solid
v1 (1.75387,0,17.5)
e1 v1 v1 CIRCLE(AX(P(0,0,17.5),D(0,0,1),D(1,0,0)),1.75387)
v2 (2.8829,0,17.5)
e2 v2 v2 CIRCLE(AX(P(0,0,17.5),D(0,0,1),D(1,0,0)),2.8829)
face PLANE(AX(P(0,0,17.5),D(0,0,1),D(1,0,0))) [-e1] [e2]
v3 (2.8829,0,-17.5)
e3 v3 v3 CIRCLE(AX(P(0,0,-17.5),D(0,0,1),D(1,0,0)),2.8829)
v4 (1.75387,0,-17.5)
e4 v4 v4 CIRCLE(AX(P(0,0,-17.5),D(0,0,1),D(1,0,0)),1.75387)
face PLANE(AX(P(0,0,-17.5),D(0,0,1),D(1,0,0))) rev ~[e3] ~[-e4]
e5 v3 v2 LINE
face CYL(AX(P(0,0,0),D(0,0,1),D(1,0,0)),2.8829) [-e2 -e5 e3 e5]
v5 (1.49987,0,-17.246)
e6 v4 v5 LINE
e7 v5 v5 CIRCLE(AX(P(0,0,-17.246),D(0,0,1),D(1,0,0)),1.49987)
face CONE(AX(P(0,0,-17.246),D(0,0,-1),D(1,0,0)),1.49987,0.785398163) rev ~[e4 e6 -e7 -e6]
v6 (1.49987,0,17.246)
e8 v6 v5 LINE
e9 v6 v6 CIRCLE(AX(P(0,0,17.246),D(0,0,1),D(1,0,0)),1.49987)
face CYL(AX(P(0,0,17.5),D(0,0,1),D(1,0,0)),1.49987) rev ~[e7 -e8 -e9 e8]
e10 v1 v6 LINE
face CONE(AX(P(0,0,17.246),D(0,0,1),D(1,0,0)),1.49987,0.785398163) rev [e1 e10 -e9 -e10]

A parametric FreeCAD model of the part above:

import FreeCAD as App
import Part
import Sketcher
from FreeCAD import Vector
Q = App.Units.Quantity


def edges_at(feature, points):
    """Names of the edges that pass closest to the given points."""
    edges = feature.Shape.Edges
    near = lambda p: min(range(len(edges)), key=lambda i: edges[i].distToShape(Part.Vertex(*p))[0])
    return sorted({f"Edge{near(p) + 1}" for p in points})

doc = App.newDocument("Part")
body = doc.addObject("PartDesign::Body", "Body")

# Sketch on XY plane
sketch1 = doc.addObject("Sketcher::SketchObject", "Sketch")
body.addObject(sketch1)
sketch1.AttachmentSupport = (doc.XY_Plane, [""])
sketch1.MapMode = "FlatFace"
sketch1.addGeometry(Part.Circle(Vector(0, 0, 0), Vector(0, 0, 1), 2.9), False)
sketch1.addConstraint([
    Sketcher.Constraint("Coincident", 0, 3, -1, 1),
    Sketcher.Constraint("Diameter", 0, Q("0.227 in")),
])
pad1 = doc.addObject("PartDesign::Pad", "Pad")
body.addObject(pad1)
pad1.Profile = sketch1
pad1.Length = 35
pad1.Midplane = True

# Sketch on XY plane
sketch2 = doc.addObject("Sketcher::SketchObject", "Sketch001")
body.addObject(sketch2)
sketch2.AttachmentSupport = (doc.XY_Plane, [""])
sketch2.MapMode = "FlatFace"
sketch2.AttachmentOffset = App.Placement(Vector(0, 0, 17.5), App.Rotation())
sketch2.addGeometry(Part.Circle(Vector(0, 0, 0), Vector(0, 0, 1), 1.5), False)
sketch2.addConstraint([
    Sketcher.Constraint("Coincident", 0, 3, -1, 1),
    Sketcher.Constraint("Diameter", 0, Q("0.1181 in")),
])
pocket1 = doc.addObject("PartDesign::Pocket", "Pocket")
body.addObject(pocket1)
pocket1.Profile = sketch2
pocket1.Type = "ThroughAll"
doc.recompute()

chamfer = doc.addObject("PartDesign::Chamfer", "Chamfer")
body.addObject(chamfer)
chamfer.Base = (pocket1, edges_at(pocket1, [(-1.5, 0, 17.5), (-1.5, 0, -17.5)]))
chamfer.Size = Q("0.01 in")

doc.recompute()
